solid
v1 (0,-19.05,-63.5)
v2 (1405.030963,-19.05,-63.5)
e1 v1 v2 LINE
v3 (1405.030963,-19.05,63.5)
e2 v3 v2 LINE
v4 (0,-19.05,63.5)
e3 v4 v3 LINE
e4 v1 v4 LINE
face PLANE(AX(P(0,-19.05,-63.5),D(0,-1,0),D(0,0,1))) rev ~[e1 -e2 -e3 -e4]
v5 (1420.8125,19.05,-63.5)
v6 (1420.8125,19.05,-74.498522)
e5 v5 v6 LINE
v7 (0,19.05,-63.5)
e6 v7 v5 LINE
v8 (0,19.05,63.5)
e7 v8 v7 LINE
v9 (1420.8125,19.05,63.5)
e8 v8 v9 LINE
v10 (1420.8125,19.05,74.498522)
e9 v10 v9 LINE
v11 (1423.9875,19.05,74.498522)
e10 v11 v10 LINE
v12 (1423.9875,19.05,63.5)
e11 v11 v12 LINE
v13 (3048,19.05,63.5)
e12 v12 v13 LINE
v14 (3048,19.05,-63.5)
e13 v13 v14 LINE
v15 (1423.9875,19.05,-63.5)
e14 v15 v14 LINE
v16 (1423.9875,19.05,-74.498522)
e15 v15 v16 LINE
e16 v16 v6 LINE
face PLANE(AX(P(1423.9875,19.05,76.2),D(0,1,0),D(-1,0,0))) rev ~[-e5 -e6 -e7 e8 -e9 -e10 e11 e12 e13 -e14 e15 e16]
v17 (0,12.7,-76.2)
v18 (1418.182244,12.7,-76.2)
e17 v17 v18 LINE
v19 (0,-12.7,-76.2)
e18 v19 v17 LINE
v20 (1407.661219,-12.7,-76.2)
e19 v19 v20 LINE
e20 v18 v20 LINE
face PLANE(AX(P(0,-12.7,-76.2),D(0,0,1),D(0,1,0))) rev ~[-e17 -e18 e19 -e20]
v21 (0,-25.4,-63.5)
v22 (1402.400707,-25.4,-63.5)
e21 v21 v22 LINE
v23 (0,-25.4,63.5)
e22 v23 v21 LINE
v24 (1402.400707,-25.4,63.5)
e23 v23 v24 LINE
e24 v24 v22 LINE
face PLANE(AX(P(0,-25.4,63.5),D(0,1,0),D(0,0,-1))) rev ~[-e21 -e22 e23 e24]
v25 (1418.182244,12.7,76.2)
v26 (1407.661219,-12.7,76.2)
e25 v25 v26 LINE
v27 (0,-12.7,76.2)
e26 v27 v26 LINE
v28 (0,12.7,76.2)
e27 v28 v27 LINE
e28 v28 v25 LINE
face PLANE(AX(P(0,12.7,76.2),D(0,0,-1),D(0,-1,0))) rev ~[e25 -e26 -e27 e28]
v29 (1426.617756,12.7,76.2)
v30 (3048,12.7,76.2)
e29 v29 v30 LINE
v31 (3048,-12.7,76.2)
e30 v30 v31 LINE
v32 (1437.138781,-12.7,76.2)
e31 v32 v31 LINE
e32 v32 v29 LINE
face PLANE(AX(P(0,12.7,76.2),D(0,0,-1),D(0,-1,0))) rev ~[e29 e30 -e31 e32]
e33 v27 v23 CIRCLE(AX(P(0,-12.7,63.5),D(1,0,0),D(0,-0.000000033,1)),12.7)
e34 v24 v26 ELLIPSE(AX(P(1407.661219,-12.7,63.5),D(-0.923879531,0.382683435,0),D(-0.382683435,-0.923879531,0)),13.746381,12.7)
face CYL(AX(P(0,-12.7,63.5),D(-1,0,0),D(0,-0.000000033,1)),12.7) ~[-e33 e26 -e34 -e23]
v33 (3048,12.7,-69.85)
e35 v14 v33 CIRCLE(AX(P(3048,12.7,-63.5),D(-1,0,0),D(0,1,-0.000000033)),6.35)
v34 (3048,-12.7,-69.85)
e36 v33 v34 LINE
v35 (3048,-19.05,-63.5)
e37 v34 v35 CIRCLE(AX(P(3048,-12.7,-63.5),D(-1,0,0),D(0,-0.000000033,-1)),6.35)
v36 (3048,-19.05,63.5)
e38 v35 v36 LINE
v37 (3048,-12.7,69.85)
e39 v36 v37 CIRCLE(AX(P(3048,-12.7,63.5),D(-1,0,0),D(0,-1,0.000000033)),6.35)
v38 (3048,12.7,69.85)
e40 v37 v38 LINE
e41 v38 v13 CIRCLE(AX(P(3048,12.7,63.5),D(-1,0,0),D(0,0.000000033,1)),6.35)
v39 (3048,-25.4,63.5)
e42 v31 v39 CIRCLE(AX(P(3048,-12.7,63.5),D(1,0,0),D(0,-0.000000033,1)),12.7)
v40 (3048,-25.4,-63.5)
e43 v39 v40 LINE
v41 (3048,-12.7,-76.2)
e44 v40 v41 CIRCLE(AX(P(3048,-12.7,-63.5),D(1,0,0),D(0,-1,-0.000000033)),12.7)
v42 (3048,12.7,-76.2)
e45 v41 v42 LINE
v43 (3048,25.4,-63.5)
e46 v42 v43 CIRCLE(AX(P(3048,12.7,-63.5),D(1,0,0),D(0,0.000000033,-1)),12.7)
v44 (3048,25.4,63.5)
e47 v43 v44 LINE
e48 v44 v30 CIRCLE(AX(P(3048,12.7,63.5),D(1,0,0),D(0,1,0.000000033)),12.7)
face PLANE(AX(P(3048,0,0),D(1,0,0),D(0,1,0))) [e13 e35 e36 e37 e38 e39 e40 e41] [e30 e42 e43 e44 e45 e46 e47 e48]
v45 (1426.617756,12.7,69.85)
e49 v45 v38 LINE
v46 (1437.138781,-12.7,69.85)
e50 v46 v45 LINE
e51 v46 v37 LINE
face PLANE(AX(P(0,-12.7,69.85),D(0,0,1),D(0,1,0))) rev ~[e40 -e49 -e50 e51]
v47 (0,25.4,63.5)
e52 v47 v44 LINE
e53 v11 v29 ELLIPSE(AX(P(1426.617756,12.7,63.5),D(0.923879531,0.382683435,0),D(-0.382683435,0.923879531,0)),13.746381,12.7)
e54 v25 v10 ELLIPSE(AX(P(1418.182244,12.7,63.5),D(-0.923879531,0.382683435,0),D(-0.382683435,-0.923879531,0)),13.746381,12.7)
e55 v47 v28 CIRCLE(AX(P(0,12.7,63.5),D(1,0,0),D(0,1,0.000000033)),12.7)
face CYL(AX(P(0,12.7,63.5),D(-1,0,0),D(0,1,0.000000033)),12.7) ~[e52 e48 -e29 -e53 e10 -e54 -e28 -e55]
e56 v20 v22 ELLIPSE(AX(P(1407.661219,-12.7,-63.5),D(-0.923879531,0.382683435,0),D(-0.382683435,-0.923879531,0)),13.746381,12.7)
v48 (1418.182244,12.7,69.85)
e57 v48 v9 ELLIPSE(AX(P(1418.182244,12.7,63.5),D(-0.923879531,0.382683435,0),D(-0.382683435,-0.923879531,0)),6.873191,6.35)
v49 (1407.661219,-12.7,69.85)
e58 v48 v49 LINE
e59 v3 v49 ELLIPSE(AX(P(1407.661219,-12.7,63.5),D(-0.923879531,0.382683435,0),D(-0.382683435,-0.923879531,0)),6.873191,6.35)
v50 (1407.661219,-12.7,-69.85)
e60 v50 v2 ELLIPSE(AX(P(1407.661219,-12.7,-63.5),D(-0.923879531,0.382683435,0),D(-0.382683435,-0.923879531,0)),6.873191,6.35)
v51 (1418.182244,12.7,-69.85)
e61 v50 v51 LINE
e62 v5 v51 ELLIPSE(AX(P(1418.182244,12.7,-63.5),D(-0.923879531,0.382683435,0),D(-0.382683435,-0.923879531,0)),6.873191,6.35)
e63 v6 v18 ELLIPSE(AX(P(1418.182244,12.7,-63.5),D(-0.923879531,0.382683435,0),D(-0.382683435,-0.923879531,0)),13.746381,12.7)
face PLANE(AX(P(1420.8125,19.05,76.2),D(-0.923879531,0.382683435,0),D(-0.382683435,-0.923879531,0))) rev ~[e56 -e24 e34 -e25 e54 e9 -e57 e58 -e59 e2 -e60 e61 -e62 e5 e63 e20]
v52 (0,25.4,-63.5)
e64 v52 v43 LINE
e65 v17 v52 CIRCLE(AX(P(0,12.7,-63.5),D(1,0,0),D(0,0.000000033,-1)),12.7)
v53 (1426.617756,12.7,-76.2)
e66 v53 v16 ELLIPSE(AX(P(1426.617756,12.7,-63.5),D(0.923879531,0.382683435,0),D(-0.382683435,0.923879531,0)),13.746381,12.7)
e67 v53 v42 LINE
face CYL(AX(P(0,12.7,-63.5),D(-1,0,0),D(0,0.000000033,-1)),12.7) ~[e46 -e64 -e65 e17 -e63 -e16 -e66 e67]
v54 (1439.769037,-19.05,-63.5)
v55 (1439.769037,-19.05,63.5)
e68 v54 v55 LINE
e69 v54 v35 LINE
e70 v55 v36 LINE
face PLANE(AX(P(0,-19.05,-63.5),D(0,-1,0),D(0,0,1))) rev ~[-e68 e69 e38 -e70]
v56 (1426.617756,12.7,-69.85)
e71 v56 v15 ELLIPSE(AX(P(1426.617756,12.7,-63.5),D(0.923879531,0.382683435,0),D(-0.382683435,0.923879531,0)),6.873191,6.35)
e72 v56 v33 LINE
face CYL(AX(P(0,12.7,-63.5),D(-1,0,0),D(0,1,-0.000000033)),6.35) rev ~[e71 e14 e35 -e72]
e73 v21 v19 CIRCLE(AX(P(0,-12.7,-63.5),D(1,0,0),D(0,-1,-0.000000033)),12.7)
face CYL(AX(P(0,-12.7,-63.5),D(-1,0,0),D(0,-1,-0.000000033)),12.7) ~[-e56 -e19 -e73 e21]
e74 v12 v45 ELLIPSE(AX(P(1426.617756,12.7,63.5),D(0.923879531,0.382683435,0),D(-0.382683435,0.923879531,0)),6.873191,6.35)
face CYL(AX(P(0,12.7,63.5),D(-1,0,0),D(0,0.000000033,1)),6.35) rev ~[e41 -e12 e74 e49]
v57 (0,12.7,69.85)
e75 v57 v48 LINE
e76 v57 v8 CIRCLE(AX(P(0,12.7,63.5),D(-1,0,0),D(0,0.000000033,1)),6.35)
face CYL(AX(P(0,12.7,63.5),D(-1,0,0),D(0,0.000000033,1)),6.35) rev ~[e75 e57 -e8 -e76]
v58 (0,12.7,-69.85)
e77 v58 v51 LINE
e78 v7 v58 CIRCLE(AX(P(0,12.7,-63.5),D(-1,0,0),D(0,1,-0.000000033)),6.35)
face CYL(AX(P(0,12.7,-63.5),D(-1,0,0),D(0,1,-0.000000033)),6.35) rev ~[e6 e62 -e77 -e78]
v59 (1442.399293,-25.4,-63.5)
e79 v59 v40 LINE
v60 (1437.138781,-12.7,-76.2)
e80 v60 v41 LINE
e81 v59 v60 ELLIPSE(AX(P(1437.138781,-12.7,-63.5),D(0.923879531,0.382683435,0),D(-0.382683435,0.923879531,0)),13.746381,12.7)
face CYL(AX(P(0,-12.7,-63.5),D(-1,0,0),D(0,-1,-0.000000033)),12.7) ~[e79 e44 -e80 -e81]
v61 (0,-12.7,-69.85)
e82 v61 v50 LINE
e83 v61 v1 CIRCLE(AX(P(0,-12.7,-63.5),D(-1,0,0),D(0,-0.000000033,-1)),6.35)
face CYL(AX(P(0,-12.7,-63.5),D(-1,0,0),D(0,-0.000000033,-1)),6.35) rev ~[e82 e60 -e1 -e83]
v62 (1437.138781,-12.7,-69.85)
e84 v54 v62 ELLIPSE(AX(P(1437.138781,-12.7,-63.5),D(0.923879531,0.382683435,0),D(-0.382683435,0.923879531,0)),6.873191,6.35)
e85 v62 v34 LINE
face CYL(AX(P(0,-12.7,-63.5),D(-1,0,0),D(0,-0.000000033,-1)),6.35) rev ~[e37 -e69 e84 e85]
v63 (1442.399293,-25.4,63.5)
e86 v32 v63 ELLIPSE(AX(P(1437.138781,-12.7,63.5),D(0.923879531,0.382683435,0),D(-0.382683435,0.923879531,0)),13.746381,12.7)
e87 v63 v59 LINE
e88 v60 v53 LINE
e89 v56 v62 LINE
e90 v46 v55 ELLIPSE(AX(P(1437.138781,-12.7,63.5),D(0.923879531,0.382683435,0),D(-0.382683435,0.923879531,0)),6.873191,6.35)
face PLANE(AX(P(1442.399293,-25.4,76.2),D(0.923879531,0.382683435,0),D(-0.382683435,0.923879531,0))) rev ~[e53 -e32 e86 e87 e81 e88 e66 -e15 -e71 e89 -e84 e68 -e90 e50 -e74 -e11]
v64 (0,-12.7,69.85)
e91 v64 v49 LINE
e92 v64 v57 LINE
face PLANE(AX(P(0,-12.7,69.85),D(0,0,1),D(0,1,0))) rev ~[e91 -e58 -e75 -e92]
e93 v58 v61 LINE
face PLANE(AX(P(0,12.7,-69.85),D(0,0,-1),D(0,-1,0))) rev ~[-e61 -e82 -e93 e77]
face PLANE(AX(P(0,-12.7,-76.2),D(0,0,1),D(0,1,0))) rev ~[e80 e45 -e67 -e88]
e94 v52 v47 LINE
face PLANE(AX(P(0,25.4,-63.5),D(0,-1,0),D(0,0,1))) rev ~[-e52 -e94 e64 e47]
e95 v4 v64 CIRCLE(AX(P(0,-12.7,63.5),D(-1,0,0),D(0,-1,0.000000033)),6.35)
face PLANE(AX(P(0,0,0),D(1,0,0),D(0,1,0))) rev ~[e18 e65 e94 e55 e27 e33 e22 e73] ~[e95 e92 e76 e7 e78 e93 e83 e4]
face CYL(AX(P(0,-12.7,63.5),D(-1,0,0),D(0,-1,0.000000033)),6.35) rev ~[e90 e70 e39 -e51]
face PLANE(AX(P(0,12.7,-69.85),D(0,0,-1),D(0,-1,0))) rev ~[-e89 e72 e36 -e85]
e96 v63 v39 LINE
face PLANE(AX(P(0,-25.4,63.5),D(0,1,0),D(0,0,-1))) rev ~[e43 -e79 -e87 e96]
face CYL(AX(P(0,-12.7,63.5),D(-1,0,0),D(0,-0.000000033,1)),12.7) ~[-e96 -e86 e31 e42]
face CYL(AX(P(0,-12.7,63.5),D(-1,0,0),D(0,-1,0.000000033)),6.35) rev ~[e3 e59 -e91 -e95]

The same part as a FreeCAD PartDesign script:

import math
import FreeCAD as App
import Part
import Sketcher

V = App.Vector
Q = App.Units.Quantity

doc = App.newDocument("Part")
body = doc.addObject("PartDesign::Body", "Body")

# Sketch on YZ plane
sketch1 = body.newObject("Sketcher::SketchObject", "Sketch")
sketch1.AttachmentSupport = (doc.getObject("YZ_Plane"), [""])
sketch1.MapMode = "FlatFace"
sketch1.addGeometry([
    Part.ArcOfCircle(Part.Circle(V(13, 63, 0), V(0, 0, 1), 13), math.radians(0), math.radians(90)),  # 0
    Part.LineSegment(V(13, 76, 0), V(-13, 76, 0)),  # 1
    Part.ArcOfCircle(Part.Circle(V(-13, 63, 0), V(0, 0, 1), 13), math.radians(90), math.radians(180)),  # 2
    Part.LineSegment(V(-25, 64, 0), V(-25, -64, 0)),  # 3
    Part.ArcOfCircle(Part.Circle(V(-13, -63, 0), V(0, 0, 1), 13), math.radians(-180), math.radians(-90)),  # 4
    Part.LineSegment(V(-13, -76, 0), V(13, -76, 0)),  # 5
    Part.ArcOfCircle(Part.Circle(V(13, -63, 0), V(0, 0, 1), 13), math.radians(-90), math.radians(0)),  # 6
    Part.LineSegment(V(25, -64, 0), V(25, 64, 0)),  # 7
    Part.ArcOfCircle(Part.Circle(V(-13, -63, 0), V(0, 0, 1), 6), math.radians(-180), math.radians(-90)),  # 8
    Part.LineSegment(V(-19, -64, 0), V(-19, 64, 0)),  # 9
    Part.ArcOfCircle(Part.Circle(V(-13, 63, 0), V(0, 0, 1), 6), math.radians(90), math.radians(180)),  # 10
    Part.LineSegment(V(-13, 70, 0), V(13, 70, 0)),  # 11
    Part.ArcOfCircle(Part.Circle(V(13, 63, 0), V(0, 0, 1), 6), math.radians(0), math.radians(90)),  # 12
    Part.LineSegment(V(19, 64, 0), V(19, -64, 0)),  # 13
    Part.ArcOfCircle(Part.Circle(V(13, -63, 0), V(0, 0, 1), 6), math.radians(-90), math.radians(0)),  # 14
    Part.LineSegment(V(13, -70, 0), V(-13, -70, 0)),  # 15
], False)
sketch1.addConstraint([
    Sketcher.Constraint("Tangent", 0, 2, 1, 1),
    Sketcher.Constraint("Tangent", 1, 2, 2, 1),
    Sketcher.Constraint("Tangent", 2, 2, 3, 1),
    Sketcher.Constraint("Tangent", 3, 2, 4, 1),
    Sketcher.Constraint("Tangent", 4, 2, 5, 1),
    Sketcher.Constraint("Tangent", 5, 2, 6, 1),
    Sketcher.Constraint("Tangent", 6, 2, 7, 1),
    Sketcher.Constraint("Tangent", 7, 2, 0, 1),
    Sketcher.Constraint("Tangent", 8, 1, 9, 1),
    Sketcher.Constraint("Tangent", 9, 2, 10, 2),
    Sketcher.Constraint("Tangent", 10, 1, 11, 1),
    Sketcher.Constraint("Tangent", 11, 2, 12, 2),
    Sketcher.Constraint("Tangent", 12, 1, 13, 1),
    Sketcher.Constraint("Tangent", 13, 2, 14, 2),
    Sketcher.Constraint("Tangent", 14, 1, 15, 1),
    Sketcher.Constraint("Tangent", 15, 2, 8, 2),
    Sketcher.Constraint("Horizontal", 1),
    Sketcher.Constraint("Vertical", 3),
    Sketcher.Constraint("Horizontal", 5),
    Sketcher.Constraint("Vertical", 7),
    Sketcher.Constraint("Vertical", 9),
    Sketcher.Constraint("Horizontal", 11),
    Sketcher.Constraint("Vertical", 13),
    Sketcher.Constraint("Horizontal", 15),
    Sketcher.Constraint("Coincident", 8, 3, 4, 3),
    Sketcher.Constraint("Coincident", 10, 3, 2, 3),
    Sketcher.Constraint("Coincident", 12, 3, 0, 3),
    Sketcher.Constraint("Equal", 0, 2),
    Sketcher.Constraint("Equal", 2, 4),
    Sketcher.Constraint("Equal", 4, 6),
    Sketcher.Constraint("Equal", 12, 14),
    Sketcher.Constraint("Symmetric", 0, 3, 4, 3, -1, 1),
    Sketcher.Constraint("Radius", 0, Q("0.5 in")),
    Sketcher.Constraint("DistanceX", 1, 2, 1, 1, Q("1 in")),
    Sketcher.Constraint("DistanceY", 3, 2, 3, 1, Q("5 in")),
    Sketcher.Constraint("Radius", 8, Q("0.25 in")),
])
pad1 = body.newObject("PartDesign::Pad", "Pad")
pad1.Profile = sketch1
pad1.Length = Q("120 in")

# Sketch on XY plane
sketch2 = body.newObject("Sketcher::SketchObject", "Sketch001")
sketch2.AttachmentSupport = (doc.getObject("XY_Plane"), [""])
sketch2.MapMode = "FlatFace"
sketch2.AttachmentOffset = App.Placement(V(0, 0, 3 * 25.4), App.Rotation())
sketch2.addGeometry([
    Part.LineSegment(V(1424, 19.1, 0), V(1420.8, 19.1, 0)),
    Part.LineSegment(V(1420.8, 19.1, 0), V(1402.4, -25.4, 0)),
    Part.LineSegment(V(1402.4, -25.4, 0), V(1442.4, -25.4, 0)),
    Part.LineSegment(V(1442.4, -25.4, 0), V(1424, 19.1, 0)),
], False)
sketch2.addConstraint([
    Sketcher.Constraint("Coincident", 0, 2, 1, 1),
    Sketcher.Constraint("Coincident", 1, 2, 2, 1),
    Sketcher.Constraint("Coincident", 2, 2, 3, 1),
    Sketcher.Constraint("Coincident", 3, 2, 0, 1),
    Sketcher.Constraint("Horizontal", 0),
    Sketcher.Constraint("Horizontal", 2),
    Sketcher.Constraint("Equal", 1, 3),
    Sketcher.Constraint("DistanceY", 1, 2, -1, 1, Q("1 in")),
    Sketcher.Constraint("Angle", 1, Q("-112.5 deg")),
    Sketcher.Constraint("DistanceX", 0, 2, 0, 1, Q("0.125 in")),
    Sketcher.Constraint("DistanceY", -1, 1, 0, 2, Q("0.75 in")),
    Sketcher.Constraint("DistanceX", -1, 1, 0, 2, Q("55.9375 in")),
])
pocket1 = body.newObject("PartDesign::Pocket", "Pocket")
pocket1.Profile = sketch2
pocket1.Type = "ThroughAll"

doc.recompute()
